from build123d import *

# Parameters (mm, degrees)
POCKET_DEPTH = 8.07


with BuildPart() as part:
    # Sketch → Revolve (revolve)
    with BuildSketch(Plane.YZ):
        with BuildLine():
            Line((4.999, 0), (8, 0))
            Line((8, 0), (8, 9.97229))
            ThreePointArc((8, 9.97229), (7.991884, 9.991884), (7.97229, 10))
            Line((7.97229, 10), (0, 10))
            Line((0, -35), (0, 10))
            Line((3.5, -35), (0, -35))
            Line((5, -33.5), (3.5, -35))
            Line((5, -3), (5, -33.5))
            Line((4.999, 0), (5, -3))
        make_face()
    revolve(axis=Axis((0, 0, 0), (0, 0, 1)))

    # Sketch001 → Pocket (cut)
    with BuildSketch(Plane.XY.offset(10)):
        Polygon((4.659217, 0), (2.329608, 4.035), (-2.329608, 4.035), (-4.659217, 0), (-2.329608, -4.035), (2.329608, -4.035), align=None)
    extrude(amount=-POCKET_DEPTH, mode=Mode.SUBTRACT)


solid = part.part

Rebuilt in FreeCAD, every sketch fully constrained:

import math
import FreeCAD as App
import Part
import Sketcher
from FreeCAD import Vector
Q = App.Units.Quantity

doc = App.newDocument("Part")
body = doc.addObject("PartDesign::Body", "Body")

# Sketch on YZ plane
sketch1 = body.newObject("Sketcher::SketchObject", "Sketch")
sketch1.AttachmentSupport = (doc.getObject("YZ_Plane"), [""])
sketch1.MapMode = "FlatFace"
sketch1.addGeometry([
    Part.LineSegment(Vector(4.999, 0, 0), Vector(8, 0, 0)),  # 0
    Part.LineSegment(Vector(8, 0, 0), Vector(8, 9.97229, 0)),  # 1
    Part.ArcOfCircle(Part.Circle(Vector(7.97229, 9.97229, 0), Vector(0, 0, 1), 0.02771), math.radians(-0.000502), math.radians(90.000502)),  # 2
    Part.LineSegment(Vector(7.97229, 10, 0), Vector(0, 10, 0)),  # 3
    Part.LineSegment(Vector(0, 10, 0), Vector(0, -35, 0)),  # 4
    Part.LineSegment(Vector(0, -35, 0), Vector(3.5, -35, 0)),  # 5
    Part.LineSegment(Vector(3.5, -35, 0), Vector(5, -33.5, 0)),  # 6
    Part.LineSegment(Vector(5, -33.5, 0), Vector(5, -3, 0)),  # 7
    Part.LineSegment(Vector(5, -3, 0), Vector(4.999, 0, 0)),  # 8
], False)
sketch1.addConstraint([
    Sketcher.Constraint("Coincident", 0, 2, 1, 1),
    Sketcher.Constraint("Coincident", 1, 2, 2, 1),
    Sketcher.Constraint("Coincident", 2, 2, 3, 1),
    Sketcher.Constraint("Coincident", 3, 2, 4, 1),
    Sketcher.Constraint("Coincident", 4, 2, 5, 1),
    Sketcher.Constraint("Coincident", 5, 2, 6, 1),
    Sketcher.Constraint("Coincident", 6, 2, 7, 1),
    Sketcher.Constraint("Coincident", 7, 2, 8, 1),
    Sketcher.Constraint("Coincident", 8, 2, 0, 1),
    Sketcher.Constraint("Horizontal", 0),
    Sketcher.Constraint("Vertical", 1),
    Sketcher.Constraint("Horizontal", 3),
    Sketcher.Constraint("Vertical", 4),
    Sketcher.Constraint("Horizontal", 5),
    Sketcher.Constraint("Vertical", 7),
    Sketcher.Constraint("PointOnObject", 0, 2, -1),
    Sketcher.Constraint("PointOnObject", 3, 2, -2),
    Sketcher.Constraint("Horizontal", 2, 3, 1, 2),
    Sketcher.Constraint("DistanceY", 4, 2, 4, 1, Q("45 mm")),
    Sketcher.Constraint("Angle", 6, Q("45 deg")),
    Sketcher.Constraint("Distance", 8, Q("3 mm")),
    Sketcher.Constraint("DistanceX", 5, 1, 5, 2, Q("3.5 mm")),
    Sketcher.Constraint("DistanceY", 7, 1, 7, 2, Q("30.5 mm")),
    Sketcher.Constraint("DistanceX", -1, 1, 0, 2, Q("8 mm")),
    Sketcher.Constraint("DistanceY", -1, 1, 2, 2, Q("10 mm")),
    Sketcher.Constraint("DistanceX", 0, 1, 0, 2, Q("3.001 mm")),
    Sketcher.Constraint("Radius", 2, Q("0.02771 mm")),
    Sketcher.Constraint("DistanceX", 3, 2, 3, 1, Q("7.97229 mm")),
])
revolution = body.newObject("PartDesign::Revolution", "Revolution")
revolution.Profile = sketch1
revolution.ReferenceAxis = (sketch1, ["V_Axis"])
revolution.Angle = 360

# Sketch on XY plane
sketch2 = body.newObject("Sketcher::SketchObject", "Sketch001")
sketch2.AttachmentSupport = (doc.getObject("XY_Plane"), [""])
sketch2.MapMode = "FlatFace"
sketch2.AttachmentOffset = App.Placement(Vector(0, 0, 10), App.Rotation())
sketch2.addGeometry([
    Part.LineSegment(Vector(4.659217, 0, 0), Vector(2.329608, 4.035, 0)),  # 0
    Part.LineSegment(Vector(2.329608, 4.035, 0), Vector(-2.329608, 4.035, 0)),  # 1
    Part.LineSegment(Vector(-2.329608, 4.035, 0), Vector(-4.659217, 0, 0)),  # 2
    Part.LineSegment(Vector(-4.659217, 0, 0), Vector(-2.329608, -4.035, 0)),  # 3
    Part.LineSegment(Vector(-2.329608, -4.035, 0), Vector(2.329608, -4.035, 0)),  # 4
    Part.LineSegment(Vector(2.329608, -4.035, 0), Vector(4.659217, 0, 0)),  # 5
], False)
sketch2.addConstraint([
    Sketcher.Constraint("Coincident", 0, 2, 1, 1),
    Sketcher.Constraint("Coincident", 1, 2, 2, 1),
    Sketcher.Constraint("Coincident", 2, 2, 3, 1),
    Sketcher.Constraint("Coincident", 3, 2, 4, 1),
    Sketcher.Constraint("Coincident", 4, 2, 5, 1),
    Sketcher.Constraint("Coincident", 5, 2, 0, 1),
    Sketcher.Constraint("Horizontal", 1),
    Sketcher.Constraint("Horizontal", 4),
    Sketcher.Constraint("Symmetric", 0, 2, 3, 2, -1, 1),
    Sketcher.Constraint("Symmetric", 2, 2, 5, 2, -1, 1),
    Sketcher.Constraint("PointOnObject", 2, 2, -1),
    Sketcher.Constraint("Parallel", 2, 5),
    Sketcher.Constraint("Vertical", 1, 2, 3, 2),
    Sketcher.Constraint("Angle", 0, Q("120.000007 deg")),
    Sketcher.Constraint("DistanceY", 3, 2, 1, 2, Q("8.07 mm")),
    Sketcher.Constraint("DistanceX", 1, 2, 1, 1, Q("4.659216 mm")),
])
pocket1 = body.newObject("PartDesign::Pocket", "Pocket")
pocket1.Profile = sketch2
pocket1.Length = 8.07

doc.recompute()
